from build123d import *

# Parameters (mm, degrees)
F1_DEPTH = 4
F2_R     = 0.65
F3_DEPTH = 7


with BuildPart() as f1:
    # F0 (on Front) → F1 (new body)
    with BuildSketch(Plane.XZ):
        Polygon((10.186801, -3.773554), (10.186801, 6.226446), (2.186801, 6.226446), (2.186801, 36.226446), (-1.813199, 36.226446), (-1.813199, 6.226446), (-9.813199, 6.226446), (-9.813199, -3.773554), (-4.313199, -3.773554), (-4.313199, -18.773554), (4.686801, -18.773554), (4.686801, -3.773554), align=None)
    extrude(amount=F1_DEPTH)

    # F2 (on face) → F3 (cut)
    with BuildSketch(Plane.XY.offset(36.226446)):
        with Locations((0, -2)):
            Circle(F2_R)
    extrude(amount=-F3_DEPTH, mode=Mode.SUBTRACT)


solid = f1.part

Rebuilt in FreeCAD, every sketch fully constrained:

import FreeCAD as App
import Part
import Sketcher
from FreeCAD import Vector
Q = App.Units.Quantity

doc = App.newDocument("Part")
params = doc.addObject("Spreadsheet::Sheet", "Params")
for row, (alias, value) in enumerate([
    ("sketch1_width", "8 mm"),
    ("sketch1_width2", "4 mm"),
    ("sketch1_width3", "9 mm"),
    ("sketch1_height", "10 mm"),
    ("sketch1_height2", "30 mm"),
    ("pad1_length", "4 mm"),
    ("sketch2_diameter", "1.3 mm"),
    ("pocket1_length", "7 mm"),
], start=1):
    params.set(f"A{row}", alias)
    params.set(f"B{row}", "=" + value)
    params.setAlias(f"B{row}", alias)

body = doc.addObject("PartDesign::Body", "Body")

# Sketch on XZ plane
sketch1 = body.newObject("Sketcher::SketchObject", "Sketch")
sketch1.AttachmentSupport = (doc.getObject("XZ_Plane"), [""])
sketch1.MapMode = "FlatFace"
sketch1.addGeometry(Part.LineSegment(Vector(10.186801, -3.773554, 0), Vector(10.186801, 6.226446, 0)), False)
sketch1.addGeometry(Part.LineSegment(Vector(10.186801, 6.226446, 0), Vector(2.186801, 6.226446, 0)), False)
sketch1.addGeometry(Part.LineSegment(Vector(2.186801, 6.226446, 0), Vector(2.186801, 36.226446, 0)), False)
sketch1.addGeometry(Part.LineSegment(Vector(2.186801, 36.226446, 0), Vector(-1.813199, 36.226446, 0)), False)
sketch1.addGeometry(Part.LineSegment(Vector(-1.813199, 36.226446, 0), Vector(-1.813199, 6.226446, 0)), False)
sketch1.addGeometry(Part.LineSegment(Vector(-1.813199, 6.226446, 0), Vector(-9.813199, 6.226446, 0)), False)
sketch1.addGeometry(Part.LineSegment(Vector(-9.813199, 6.226446, 0), Vector(-9.813199, -3.773554, 0)), False)
sketch1.addGeometry(Part.LineSegment(Vector(-9.813199, -3.773554, 0), Vector(-4.313199, -3.773554, 0)), False)
sketch1.addGeometry(Part.LineSegment(Vector(-4.313199, -3.773554, 0), Vector(-4.313199, -18.773554, 0)), False)
sketch1.addGeometry(Part.LineSegment(Vector(-4.313199, -18.773554, 0), Vector(4.686801, -18.773554, 0)), False)
sketch1.addGeometry(Part.LineSegment(Vector(4.686801, -18.773554, 0), Vector(4.686801, -3.773554, 0)), False)
sketch1.addGeometry(Part.LineSegment(Vector(4.686801, -3.773554, 0), Vector(10.186801, -3.773554, 0)), False)
sketch1.addConstraint(Sketcher.Constraint("Coincident", 0, 2, 1, 1))
sketch1.addConstraint(Sketcher.Constraint("Coincident", 1, 2, 2, 1))
sketch1.addConstraint(Sketcher.Constraint("Coincident", 2, 2, 3, 1))
sketch1.addConstraint(Sketcher.Constraint("Coincident", 3, 2, 4, 1))
sketch1.addConstraint(Sketcher.Constraint("Coincident", 4, 2, 5, 1))
sketch1.addConstraint(Sketcher.Constraint("Coincident", 5, 2, 6, 1))
sketch1.addConstraint(Sketcher.Constraint("Coincident", 6, 2, 7, 1))
sketch1.addConstraint(Sketcher.Constraint("Coincident", 7, 2, 8, 1))
sketch1.addConstraint(Sketcher.Constraint("Coincident", 8, 2, 9, 1))
sketch1.addConstraint(Sketcher.Constraint("Coincident", 9, 2, 10, 1))
sketch1.addConstraint(Sketcher.Constraint("Coincident", 10, 2, 11, 1))
sketch1.addConstraint(Sketcher.Constraint("Coincident", 11, 2, 0, 1))
sketch1.addConstraint(Sketcher.Constraint("Vertical", 0))
sketch1.addConstraint(Sketcher.Constraint("Horizontal", 1))
sketch1.addConstraint(Sketcher.Constraint("Vertical", 2))
sketch1.addConstraint(Sketcher.Constraint("Horizontal", 3))
sketch1.addConstraint(Sketcher.Constraint("Vertical", 4))
sketch1.addConstraint(Sketcher.Constraint("Horizontal", 5))
sketch1.addConstraint(Sketcher.Constraint("Vertical", 6))
sketch1.addConstraint(Sketcher.Constraint("Horizontal", 7))
sketch1.addConstraint(Sketcher.Constraint("Vertical", 8))
sketch1.addConstraint(Sketcher.Constraint("Horizontal", 9))
sketch1.addConstraint(Sketcher.Constraint("Vertical", 10))
sketch1.addConstraint(Sketcher.Constraint("Horizontal", 11))
sketch1.addConstraint(Sketcher.Constraint("Horizontal", 1, 2, 4, 2))
sketch1.addConstraint(Sketcher.Constraint("Horizontal", 7, 2, 10, 2))
sketch1.addConstraint(Sketcher.Constraint("Equal", 1, 5))
sketch1.addConstraint(Sketcher.Constraint("Equal", 7, 11))
sketch1.addConstraint(Sketcher.Constraint("DistanceX", 1, 2, 1, 1, Q("8 mm")))
sketch1.addConstraint(Sketcher.Constraint("DistanceX", 3, 2, 3, 1, Q("4 mm")))
sketch1.addConstraint(Sketcher.Constraint("DistanceX", 9, 1, 9, 2, Q("9 mm")))
sketch1.addConstraint(Sketcher.Constraint("DistanceY", 0, 1, 0, 2, Q("10 mm")))
sketch1.addConstraint(Sketcher.Constraint("DistanceY", 2, 1, 2, 2, Q("30 mm")))
sketch1.addConstraint(Sketcher.Constraint("DistanceY", 8, 2, 8, 1, Q("15 mm")))
sketch1.addConstraint(Sketcher.Constraint("DistanceX", -1, 1, 0, 2, Q("10.186801 mm")))
sketch1.addConstraint(Sketcher.Constraint("DistanceY", -1, 1, 0, 2, Q("6.226446 mm")))
sketch1.setExpression("Constraints[28]", "Params.sketch1_width")
sketch1.setExpression("Constraints[29]", "Params.sketch1_width2")
sketch1.setExpression("Constraints[30]", "Params.sketch1_width3")
sketch1.setExpression("Constraints[31]", "Params.sketch1_height")
sketch1.setExpression("Constraints[32]", "Params.sketch1_height2")
pad1 = body.newObject("PartDesign::Pad", "Pad")
pad1.Profile = sketch1
pad1.setExpression("Length", "Params.pad1_length")

# Sketch on XY plane
sketch2 = body.newObject("Sketcher::SketchObject", "Sketch001")
sketch2.AttachmentSupport = (doc.getObject("XY_Plane"), [""])
sketch2.MapMode = "FlatFace"
sketch2.AttachmentOffset = App.Placement(Vector(0, 0, 36.226446), App.Rotation())
sketch2.addGeometry(Part.Circle(Vector(0, -2, 0), Vector(0, 0, 1), 0.65), False)
sketch2.addConstraint(Sketcher.Constraint("PointOnObject", 0, 3, -2))
sketch2.addConstraint(Sketcher.Constraint("Diameter", 0, Q("1.3 mm")))
sketch2.addConstraint(Sketcher.Constraint("DistanceY", 0, 3, -1, 1, Q("2 mm")))
sketch2.setExpression("Constraints[1]", "Params.sketch2_diameter")
pocket1 = body.newObject("PartDesign::Pocket", "Pocket")
pocket1.Profile = sketch2
pocket1.setExpression("Length", "Params.pocket1_length")

doc.recompute()
